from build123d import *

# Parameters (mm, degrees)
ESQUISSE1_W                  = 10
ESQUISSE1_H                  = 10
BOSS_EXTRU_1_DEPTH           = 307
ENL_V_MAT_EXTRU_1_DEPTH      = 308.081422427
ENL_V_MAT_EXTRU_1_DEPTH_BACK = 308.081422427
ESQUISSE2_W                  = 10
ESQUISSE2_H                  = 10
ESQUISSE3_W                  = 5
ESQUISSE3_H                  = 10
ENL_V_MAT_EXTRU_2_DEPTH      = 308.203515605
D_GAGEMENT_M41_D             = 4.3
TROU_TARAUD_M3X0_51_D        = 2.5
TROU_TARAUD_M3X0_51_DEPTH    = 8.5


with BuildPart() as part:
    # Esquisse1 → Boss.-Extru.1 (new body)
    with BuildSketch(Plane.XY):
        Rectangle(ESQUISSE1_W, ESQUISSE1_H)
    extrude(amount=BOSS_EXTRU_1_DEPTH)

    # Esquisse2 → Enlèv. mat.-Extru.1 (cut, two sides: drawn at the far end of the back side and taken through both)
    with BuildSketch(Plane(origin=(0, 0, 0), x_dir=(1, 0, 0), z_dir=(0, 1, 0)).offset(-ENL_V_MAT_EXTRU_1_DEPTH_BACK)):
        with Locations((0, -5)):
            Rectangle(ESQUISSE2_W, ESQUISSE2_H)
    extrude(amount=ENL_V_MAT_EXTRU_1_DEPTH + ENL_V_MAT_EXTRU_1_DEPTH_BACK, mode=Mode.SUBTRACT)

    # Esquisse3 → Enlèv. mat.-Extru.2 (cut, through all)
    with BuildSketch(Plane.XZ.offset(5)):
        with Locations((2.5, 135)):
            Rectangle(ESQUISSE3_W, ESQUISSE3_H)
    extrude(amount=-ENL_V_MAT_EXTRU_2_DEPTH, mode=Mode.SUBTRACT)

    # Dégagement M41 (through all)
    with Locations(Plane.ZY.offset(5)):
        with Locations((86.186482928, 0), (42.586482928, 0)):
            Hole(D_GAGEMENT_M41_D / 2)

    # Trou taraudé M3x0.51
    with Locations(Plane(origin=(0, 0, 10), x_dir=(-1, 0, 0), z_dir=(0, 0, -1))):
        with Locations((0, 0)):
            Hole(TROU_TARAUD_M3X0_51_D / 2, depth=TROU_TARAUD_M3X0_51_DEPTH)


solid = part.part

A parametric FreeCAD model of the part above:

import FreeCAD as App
import Part
import Sketcher
from FreeCAD import Vector
Q = App.Units.Quantity

doc = App.newDocument("Part")
body = doc.addObject("PartDesign::Body", "Body")

# Sketch on XY plane
sketch1 = body.newObject("Sketcher::SketchObject", "Sketch")
sketch1.AttachmentSupport = (doc.getObject("XY_Plane"), [""])
sketch1.MapMode = "FlatFace"
sketch1.addGeometry(Part.LineSegment(Vector(-5, 5, 0), Vector(-5, -5, 0)), False)
sketch1.addGeometry(Part.LineSegment(Vector(-5, -5, 0), Vector(5, -5, 0)), False)
sketch1.addGeometry(Part.LineSegment(Vector(5, -5, 0), Vector(5, 5, 0)), False)
sketch1.addGeometry(Part.LineSegment(Vector(5, 5, 0), Vector(-5, 5, 0)), False)
sketch1.addConstraint(Sketcher.Constraint("Coincident", 0, 2, 1, 1))
sketch1.addConstraint(Sketcher.Constraint("Coincident", 1, 2, 2, 1))
sketch1.addConstraint(Sketcher.Constraint("Coincident", 2, 2, 3, 1))
sketch1.addConstraint(Sketcher.Constraint("Coincident", 3, 2, 0, 1))
sketch1.addConstraint(Sketcher.Constraint("Vertical", 0))
sketch1.addConstraint(Sketcher.Constraint("Horizontal", 1))
sketch1.addConstraint(Sketcher.Constraint("Vertical", 2))
sketch1.addConstraint(Sketcher.Constraint("Horizontal", 3))
sketch1.addConstraint(Sketcher.Constraint("Symmetric", 0, 2, 2, 2, -1, 1))
sketch1.addConstraint(Sketcher.Constraint("Equal", 3, 0))
sketch1.addConstraint(Sketcher.Constraint("DistanceX", 1, 1, 1, 2, Q("10 mm")))
pad1 = body.newObject("PartDesign::Pad", "Pad")
pad1.Profile = sketch1
pad1.Length = 307

# Sketch on XZ plane
sketch2 = body.newObject("Sketcher::SketchObject", "Sketch001")
sketch2.AttachmentSupport = (doc.getObject("XZ_Plane"), [""])
sketch2.MapMode = "FlatFace"
sketch2.addGeometry(Part.LineSegment(Vector(-5, 0, 0), Vector(-5, 10, 0)), False)
sketch2.addGeometry(Part.LineSegment(Vector(-5, 10, 0), Vector(5, 10, 0)), False)
sketch2.addGeometry(Part.LineSegment(Vector(5, 10, 0), Vector(5, 0, 0)), False)
sketch2.addGeometry(Part.LineSegment(Vector(5, 0, 0), Vector(-5, 0, 0)), False)
sketch2.addConstraint(Sketcher.Constraint("Coincident", 0, 2, 1, 1))
sketch2.addConstraint(Sketcher.Constraint("Coincident", 1, 2, 2, 1))
sketch2.addConstraint(Sketcher.Constraint("Coincident", 2, 2, 3, 1))
sketch2.addConstraint(Sketcher.Constraint("Coincident", 3, 2, 0, 1))
sketch2.addConstraint(Sketcher.Constraint("Vertical", 0))
sketch2.addConstraint(Sketcher.Constraint("Horizontal", 1))
sketch2.addConstraint(Sketcher.Constraint("Vertical", 2))
sketch2.addConstraint(Sketcher.Constraint("Horizontal", 3))
sketch2.addConstraint(Sketcher.Constraint("Symmetric", 2, 2, 3, 2, -1, 1))
sketch2.addConstraint(Sketcher.Constraint("Equal", 3, 0))
sketch2.addConstraint(Sketcher.Constraint("DistanceX", 1, 1, 1, 2, Q("10 mm")))
pocket1 = body.newObject("PartDesign::Pocket", "Pocket")
pocket1.Profile = sketch2
pocket1.Type = "ThroughAll"
pocket1.Midplane = True

# Sketch on XZ plane
sketch3 = body.newObject("Sketcher::SketchObject", "Sketch002")
sketch3.AttachmentSupport = (doc.getObject("XZ_Plane"), [""])
sketch3.MapMode = "FlatFace"
sketch3.AttachmentOffset = App.Placement(Vector(0, 0, 5), App.Rotation())
sketch3.addGeometry(Part.LineSegment(Vector(0, 140, 0), Vector(0, 130, 0)), False)
sketch3.addGeometry(Part.LineSegment(Vector(0, 130, 0), Vector(5, 130, 0)), False)
sketch3.addGeometry(Part.LineSegment(Vector(5, 130, 0), Vector(5, 140, 0)), False)
sketch3.addGeometry(Part.LineSegment(Vector(5, 140, 0), Vector(0, 140, 0)), False)
sketch3.addConstraint(Sketcher.Constraint("Coincident", 0, 2, 1, 1))
sketch3.addConstraint(Sketcher.Constraint("Coincident", 1, 2, 2, 1))
sketch3.addConstraint(Sketcher.Constraint("Coincident", 2, 2, 3, 1))
sketch3.addConstraint(Sketcher.Constraint("Coincident", 3, 2, 0, 1))
sketch3.addConstraint(Sketcher.Constraint("Vertical", 0))
sketch3.addConstraint(Sketcher.Constraint("Horizontal", 1))
sketch3.addConstraint(Sketcher.Constraint("Vertical", 2))
sketch3.addConstraint(Sketcher.Constraint("Horizontal", 3))
sketch3.addConstraint(Sketcher.Constraint("PointOnObject", 0, 2, -2))
sketch3.addConstraint(Sketcher.Constraint("DistanceX", 1, 1, 1, 2, Q("5 mm")))
sketch3.addConstraint(Sketcher.Constraint("DistanceY", 0, 2, 0, 1, Q("10 mm")))
sketch3.addConstraint(Sketcher.Constraint("DistanceY", -1, 1, 0, 2, Q("130 mm")))
pocket2 = body.newObject("PartDesign::Pocket", "Pocket001")
pocket2.Profile = sketch3
pocket2.Type = "ThroughAll"

# Sketch on YZ plane
sketch4 = body.newObject("Sketcher::SketchObject", "Sketch003")
sketch4.AttachmentSupport = (doc.getObject("YZ_Plane"), [""])
sketch4.MapMode = "FlatFace"
sketch4.AttachmentOffset = App.Placement(Vector(0, 0, -5), App.Rotation())
sketch4.addGeometry(Part.Circle(Vector(0, 86.2, 0), Vector(0, 0, 1), 2.1), False)
sketch4.addGeometry(Part.Circle(Vector(0, 42.6, 0), Vector(0, 0, 1), 2.1), False)
sketch4.addConstraint(Sketcher.Constraint("Equal", 0, 1))
sketch4.addConstraint(Sketcher.Constraint("PointOnObject", 0, 3, -2))
sketch4.addConstraint(Sketcher.Constraint("PointOnObject", 1, 3, -2))
sketch4.addConstraint(Sketcher.Constraint("Diameter", 0, Q("4.3 mm")))
sketch4.addConstraint(Sketcher.Constraint("DistanceY", 1, 3, 0, 3, Q("43.6 mm")))
sketch4.addConstraint(Sketcher.Constraint("DistanceY", -1, 1, 0, 3, Q("86.186483 mm")))
doc.recompute()
hole = body.newObject("PartDesign::Hole", "Hole")
hole.Profile = sketch4
hole.ThreadType = "None"
hole.Diameter = 4.3
hole.DepthType = "ThroughAll"
hole.Reversed = True

# Sketch on XY plane
sketch5 = body.newObject("Sketcher::SketchObject", "Sketch004")
sketch5.AttachmentSupport = (doc.getObject("XY_Plane"), [""])
sketch5.MapMode = "FlatFace"
sketch5.AttachmentOffset = App.Placement(Vector(0, 0, 10), App.Rotation())
sketch5.addGeometry(Part.Circle(Vector(0, 0, 0), Vector(0, 0, 1), 1.2), False)
sketch5.addConstraint(Sketcher.Constraint("Coincident", 0, 3, -1, 1))
sketch5.addConstraint(Sketcher.Constraint("Diameter", 0, Q("2.5 mm")))
doc.recompute()
hole2 = body.newObject("PartDesign::Hole", "Hole001")
hole2.Profile = sketch5
hole2.ThreadType = "None"
hole2.Diameter = 2.5
hole2.DepthType = "Dimension"
hole2.Depth = 8.5
hole2.DrillPoint = "Flat"
hole2.Reversed = True

doc.recompute()
